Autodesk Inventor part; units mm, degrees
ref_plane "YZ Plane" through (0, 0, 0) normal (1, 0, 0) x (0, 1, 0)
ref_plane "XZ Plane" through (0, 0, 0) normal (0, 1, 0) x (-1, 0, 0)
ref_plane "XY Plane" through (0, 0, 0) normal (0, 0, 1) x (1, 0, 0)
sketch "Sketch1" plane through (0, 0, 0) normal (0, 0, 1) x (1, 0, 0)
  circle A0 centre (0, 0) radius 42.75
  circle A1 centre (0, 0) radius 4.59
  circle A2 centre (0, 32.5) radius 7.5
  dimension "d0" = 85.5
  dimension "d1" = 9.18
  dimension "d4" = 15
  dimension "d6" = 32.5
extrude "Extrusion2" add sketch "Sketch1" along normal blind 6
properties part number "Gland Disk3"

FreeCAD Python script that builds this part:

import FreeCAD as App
import Part
import Sketcher

V = App.Vector

doc = App.newDocument("Part")
params = doc.addObject("Spreadsheet::Sheet", "Params")
for row, (alias, value) in enumerate([
    ("sketch1_diameter", "15 mm"),
    ("sketch1_diameter2", "85.5 mm"),
    ("sketch1_diameter3", "9.18 mm"),
    ("pad1_length", "6 mm"),
], start=1):
    params.set(f"A{row}", alias)
    params.set(f"B{row}", "=" + value)
    params.setAlias(f"B{row}", alias)

body = doc.addObject("PartDesign::Body", "Body")

sketch1 = body.newObject("Sketcher::SketchObject", "Sketch")
sketch1.AttachmentSupport = (doc.getObject("XY_Plane"), [""])
sketch1.MapMode = "FlatFace"
sketch1.addGeometry(Part.Circle(V(0, 0, 0), V(0, 0, 1), 42.8), False)
sketch1.addGeometry(Part.Circle(V(0, 0, 0), V(0, 0, 1), 4.6), False)
sketch1.addGeometry(Part.Circle(V(0, 32.5, 0), V(0, 0, 1), 7.5), False)
sketch1.addConstraint(Sketcher.Constraint("Coincident", 0, 3, -1, 1))
sketch1.addConstraint(Sketcher.Constraint("Coincident", 1, 3, -1, 1))
sketch1.addConstraint(Sketcher.Constraint("PointOnObject", 2, 3, -2))
sketch1.addConstraint(Sketcher.Constraint("Diameter", 2, 15.0))
sketch1.addConstraint(Sketcher.Constraint("Diameter", 0, 85.5))
sketch1.addConstraint(Sketcher.Constraint("Diameter", 1, 9.18))
sketch1.addConstraint(Sketcher.Constraint("DistanceY", -1, 1, 2, 3, 32.5))
sketch1.setExpression("Constraints[3]", "Params.sketch1_diameter")
sketch1.setExpression("Constraints[4]", "Params.sketch1_diameter2")
sketch1.setExpression("Constraints[5]", "Params.sketch1_diameter3")
pad1 = body.newObject("PartDesign::Pad", "Pad")
pad1.Profile = sketch1
pad1.setExpression("Length", "Params.pad1_length")

doc.recompute()
